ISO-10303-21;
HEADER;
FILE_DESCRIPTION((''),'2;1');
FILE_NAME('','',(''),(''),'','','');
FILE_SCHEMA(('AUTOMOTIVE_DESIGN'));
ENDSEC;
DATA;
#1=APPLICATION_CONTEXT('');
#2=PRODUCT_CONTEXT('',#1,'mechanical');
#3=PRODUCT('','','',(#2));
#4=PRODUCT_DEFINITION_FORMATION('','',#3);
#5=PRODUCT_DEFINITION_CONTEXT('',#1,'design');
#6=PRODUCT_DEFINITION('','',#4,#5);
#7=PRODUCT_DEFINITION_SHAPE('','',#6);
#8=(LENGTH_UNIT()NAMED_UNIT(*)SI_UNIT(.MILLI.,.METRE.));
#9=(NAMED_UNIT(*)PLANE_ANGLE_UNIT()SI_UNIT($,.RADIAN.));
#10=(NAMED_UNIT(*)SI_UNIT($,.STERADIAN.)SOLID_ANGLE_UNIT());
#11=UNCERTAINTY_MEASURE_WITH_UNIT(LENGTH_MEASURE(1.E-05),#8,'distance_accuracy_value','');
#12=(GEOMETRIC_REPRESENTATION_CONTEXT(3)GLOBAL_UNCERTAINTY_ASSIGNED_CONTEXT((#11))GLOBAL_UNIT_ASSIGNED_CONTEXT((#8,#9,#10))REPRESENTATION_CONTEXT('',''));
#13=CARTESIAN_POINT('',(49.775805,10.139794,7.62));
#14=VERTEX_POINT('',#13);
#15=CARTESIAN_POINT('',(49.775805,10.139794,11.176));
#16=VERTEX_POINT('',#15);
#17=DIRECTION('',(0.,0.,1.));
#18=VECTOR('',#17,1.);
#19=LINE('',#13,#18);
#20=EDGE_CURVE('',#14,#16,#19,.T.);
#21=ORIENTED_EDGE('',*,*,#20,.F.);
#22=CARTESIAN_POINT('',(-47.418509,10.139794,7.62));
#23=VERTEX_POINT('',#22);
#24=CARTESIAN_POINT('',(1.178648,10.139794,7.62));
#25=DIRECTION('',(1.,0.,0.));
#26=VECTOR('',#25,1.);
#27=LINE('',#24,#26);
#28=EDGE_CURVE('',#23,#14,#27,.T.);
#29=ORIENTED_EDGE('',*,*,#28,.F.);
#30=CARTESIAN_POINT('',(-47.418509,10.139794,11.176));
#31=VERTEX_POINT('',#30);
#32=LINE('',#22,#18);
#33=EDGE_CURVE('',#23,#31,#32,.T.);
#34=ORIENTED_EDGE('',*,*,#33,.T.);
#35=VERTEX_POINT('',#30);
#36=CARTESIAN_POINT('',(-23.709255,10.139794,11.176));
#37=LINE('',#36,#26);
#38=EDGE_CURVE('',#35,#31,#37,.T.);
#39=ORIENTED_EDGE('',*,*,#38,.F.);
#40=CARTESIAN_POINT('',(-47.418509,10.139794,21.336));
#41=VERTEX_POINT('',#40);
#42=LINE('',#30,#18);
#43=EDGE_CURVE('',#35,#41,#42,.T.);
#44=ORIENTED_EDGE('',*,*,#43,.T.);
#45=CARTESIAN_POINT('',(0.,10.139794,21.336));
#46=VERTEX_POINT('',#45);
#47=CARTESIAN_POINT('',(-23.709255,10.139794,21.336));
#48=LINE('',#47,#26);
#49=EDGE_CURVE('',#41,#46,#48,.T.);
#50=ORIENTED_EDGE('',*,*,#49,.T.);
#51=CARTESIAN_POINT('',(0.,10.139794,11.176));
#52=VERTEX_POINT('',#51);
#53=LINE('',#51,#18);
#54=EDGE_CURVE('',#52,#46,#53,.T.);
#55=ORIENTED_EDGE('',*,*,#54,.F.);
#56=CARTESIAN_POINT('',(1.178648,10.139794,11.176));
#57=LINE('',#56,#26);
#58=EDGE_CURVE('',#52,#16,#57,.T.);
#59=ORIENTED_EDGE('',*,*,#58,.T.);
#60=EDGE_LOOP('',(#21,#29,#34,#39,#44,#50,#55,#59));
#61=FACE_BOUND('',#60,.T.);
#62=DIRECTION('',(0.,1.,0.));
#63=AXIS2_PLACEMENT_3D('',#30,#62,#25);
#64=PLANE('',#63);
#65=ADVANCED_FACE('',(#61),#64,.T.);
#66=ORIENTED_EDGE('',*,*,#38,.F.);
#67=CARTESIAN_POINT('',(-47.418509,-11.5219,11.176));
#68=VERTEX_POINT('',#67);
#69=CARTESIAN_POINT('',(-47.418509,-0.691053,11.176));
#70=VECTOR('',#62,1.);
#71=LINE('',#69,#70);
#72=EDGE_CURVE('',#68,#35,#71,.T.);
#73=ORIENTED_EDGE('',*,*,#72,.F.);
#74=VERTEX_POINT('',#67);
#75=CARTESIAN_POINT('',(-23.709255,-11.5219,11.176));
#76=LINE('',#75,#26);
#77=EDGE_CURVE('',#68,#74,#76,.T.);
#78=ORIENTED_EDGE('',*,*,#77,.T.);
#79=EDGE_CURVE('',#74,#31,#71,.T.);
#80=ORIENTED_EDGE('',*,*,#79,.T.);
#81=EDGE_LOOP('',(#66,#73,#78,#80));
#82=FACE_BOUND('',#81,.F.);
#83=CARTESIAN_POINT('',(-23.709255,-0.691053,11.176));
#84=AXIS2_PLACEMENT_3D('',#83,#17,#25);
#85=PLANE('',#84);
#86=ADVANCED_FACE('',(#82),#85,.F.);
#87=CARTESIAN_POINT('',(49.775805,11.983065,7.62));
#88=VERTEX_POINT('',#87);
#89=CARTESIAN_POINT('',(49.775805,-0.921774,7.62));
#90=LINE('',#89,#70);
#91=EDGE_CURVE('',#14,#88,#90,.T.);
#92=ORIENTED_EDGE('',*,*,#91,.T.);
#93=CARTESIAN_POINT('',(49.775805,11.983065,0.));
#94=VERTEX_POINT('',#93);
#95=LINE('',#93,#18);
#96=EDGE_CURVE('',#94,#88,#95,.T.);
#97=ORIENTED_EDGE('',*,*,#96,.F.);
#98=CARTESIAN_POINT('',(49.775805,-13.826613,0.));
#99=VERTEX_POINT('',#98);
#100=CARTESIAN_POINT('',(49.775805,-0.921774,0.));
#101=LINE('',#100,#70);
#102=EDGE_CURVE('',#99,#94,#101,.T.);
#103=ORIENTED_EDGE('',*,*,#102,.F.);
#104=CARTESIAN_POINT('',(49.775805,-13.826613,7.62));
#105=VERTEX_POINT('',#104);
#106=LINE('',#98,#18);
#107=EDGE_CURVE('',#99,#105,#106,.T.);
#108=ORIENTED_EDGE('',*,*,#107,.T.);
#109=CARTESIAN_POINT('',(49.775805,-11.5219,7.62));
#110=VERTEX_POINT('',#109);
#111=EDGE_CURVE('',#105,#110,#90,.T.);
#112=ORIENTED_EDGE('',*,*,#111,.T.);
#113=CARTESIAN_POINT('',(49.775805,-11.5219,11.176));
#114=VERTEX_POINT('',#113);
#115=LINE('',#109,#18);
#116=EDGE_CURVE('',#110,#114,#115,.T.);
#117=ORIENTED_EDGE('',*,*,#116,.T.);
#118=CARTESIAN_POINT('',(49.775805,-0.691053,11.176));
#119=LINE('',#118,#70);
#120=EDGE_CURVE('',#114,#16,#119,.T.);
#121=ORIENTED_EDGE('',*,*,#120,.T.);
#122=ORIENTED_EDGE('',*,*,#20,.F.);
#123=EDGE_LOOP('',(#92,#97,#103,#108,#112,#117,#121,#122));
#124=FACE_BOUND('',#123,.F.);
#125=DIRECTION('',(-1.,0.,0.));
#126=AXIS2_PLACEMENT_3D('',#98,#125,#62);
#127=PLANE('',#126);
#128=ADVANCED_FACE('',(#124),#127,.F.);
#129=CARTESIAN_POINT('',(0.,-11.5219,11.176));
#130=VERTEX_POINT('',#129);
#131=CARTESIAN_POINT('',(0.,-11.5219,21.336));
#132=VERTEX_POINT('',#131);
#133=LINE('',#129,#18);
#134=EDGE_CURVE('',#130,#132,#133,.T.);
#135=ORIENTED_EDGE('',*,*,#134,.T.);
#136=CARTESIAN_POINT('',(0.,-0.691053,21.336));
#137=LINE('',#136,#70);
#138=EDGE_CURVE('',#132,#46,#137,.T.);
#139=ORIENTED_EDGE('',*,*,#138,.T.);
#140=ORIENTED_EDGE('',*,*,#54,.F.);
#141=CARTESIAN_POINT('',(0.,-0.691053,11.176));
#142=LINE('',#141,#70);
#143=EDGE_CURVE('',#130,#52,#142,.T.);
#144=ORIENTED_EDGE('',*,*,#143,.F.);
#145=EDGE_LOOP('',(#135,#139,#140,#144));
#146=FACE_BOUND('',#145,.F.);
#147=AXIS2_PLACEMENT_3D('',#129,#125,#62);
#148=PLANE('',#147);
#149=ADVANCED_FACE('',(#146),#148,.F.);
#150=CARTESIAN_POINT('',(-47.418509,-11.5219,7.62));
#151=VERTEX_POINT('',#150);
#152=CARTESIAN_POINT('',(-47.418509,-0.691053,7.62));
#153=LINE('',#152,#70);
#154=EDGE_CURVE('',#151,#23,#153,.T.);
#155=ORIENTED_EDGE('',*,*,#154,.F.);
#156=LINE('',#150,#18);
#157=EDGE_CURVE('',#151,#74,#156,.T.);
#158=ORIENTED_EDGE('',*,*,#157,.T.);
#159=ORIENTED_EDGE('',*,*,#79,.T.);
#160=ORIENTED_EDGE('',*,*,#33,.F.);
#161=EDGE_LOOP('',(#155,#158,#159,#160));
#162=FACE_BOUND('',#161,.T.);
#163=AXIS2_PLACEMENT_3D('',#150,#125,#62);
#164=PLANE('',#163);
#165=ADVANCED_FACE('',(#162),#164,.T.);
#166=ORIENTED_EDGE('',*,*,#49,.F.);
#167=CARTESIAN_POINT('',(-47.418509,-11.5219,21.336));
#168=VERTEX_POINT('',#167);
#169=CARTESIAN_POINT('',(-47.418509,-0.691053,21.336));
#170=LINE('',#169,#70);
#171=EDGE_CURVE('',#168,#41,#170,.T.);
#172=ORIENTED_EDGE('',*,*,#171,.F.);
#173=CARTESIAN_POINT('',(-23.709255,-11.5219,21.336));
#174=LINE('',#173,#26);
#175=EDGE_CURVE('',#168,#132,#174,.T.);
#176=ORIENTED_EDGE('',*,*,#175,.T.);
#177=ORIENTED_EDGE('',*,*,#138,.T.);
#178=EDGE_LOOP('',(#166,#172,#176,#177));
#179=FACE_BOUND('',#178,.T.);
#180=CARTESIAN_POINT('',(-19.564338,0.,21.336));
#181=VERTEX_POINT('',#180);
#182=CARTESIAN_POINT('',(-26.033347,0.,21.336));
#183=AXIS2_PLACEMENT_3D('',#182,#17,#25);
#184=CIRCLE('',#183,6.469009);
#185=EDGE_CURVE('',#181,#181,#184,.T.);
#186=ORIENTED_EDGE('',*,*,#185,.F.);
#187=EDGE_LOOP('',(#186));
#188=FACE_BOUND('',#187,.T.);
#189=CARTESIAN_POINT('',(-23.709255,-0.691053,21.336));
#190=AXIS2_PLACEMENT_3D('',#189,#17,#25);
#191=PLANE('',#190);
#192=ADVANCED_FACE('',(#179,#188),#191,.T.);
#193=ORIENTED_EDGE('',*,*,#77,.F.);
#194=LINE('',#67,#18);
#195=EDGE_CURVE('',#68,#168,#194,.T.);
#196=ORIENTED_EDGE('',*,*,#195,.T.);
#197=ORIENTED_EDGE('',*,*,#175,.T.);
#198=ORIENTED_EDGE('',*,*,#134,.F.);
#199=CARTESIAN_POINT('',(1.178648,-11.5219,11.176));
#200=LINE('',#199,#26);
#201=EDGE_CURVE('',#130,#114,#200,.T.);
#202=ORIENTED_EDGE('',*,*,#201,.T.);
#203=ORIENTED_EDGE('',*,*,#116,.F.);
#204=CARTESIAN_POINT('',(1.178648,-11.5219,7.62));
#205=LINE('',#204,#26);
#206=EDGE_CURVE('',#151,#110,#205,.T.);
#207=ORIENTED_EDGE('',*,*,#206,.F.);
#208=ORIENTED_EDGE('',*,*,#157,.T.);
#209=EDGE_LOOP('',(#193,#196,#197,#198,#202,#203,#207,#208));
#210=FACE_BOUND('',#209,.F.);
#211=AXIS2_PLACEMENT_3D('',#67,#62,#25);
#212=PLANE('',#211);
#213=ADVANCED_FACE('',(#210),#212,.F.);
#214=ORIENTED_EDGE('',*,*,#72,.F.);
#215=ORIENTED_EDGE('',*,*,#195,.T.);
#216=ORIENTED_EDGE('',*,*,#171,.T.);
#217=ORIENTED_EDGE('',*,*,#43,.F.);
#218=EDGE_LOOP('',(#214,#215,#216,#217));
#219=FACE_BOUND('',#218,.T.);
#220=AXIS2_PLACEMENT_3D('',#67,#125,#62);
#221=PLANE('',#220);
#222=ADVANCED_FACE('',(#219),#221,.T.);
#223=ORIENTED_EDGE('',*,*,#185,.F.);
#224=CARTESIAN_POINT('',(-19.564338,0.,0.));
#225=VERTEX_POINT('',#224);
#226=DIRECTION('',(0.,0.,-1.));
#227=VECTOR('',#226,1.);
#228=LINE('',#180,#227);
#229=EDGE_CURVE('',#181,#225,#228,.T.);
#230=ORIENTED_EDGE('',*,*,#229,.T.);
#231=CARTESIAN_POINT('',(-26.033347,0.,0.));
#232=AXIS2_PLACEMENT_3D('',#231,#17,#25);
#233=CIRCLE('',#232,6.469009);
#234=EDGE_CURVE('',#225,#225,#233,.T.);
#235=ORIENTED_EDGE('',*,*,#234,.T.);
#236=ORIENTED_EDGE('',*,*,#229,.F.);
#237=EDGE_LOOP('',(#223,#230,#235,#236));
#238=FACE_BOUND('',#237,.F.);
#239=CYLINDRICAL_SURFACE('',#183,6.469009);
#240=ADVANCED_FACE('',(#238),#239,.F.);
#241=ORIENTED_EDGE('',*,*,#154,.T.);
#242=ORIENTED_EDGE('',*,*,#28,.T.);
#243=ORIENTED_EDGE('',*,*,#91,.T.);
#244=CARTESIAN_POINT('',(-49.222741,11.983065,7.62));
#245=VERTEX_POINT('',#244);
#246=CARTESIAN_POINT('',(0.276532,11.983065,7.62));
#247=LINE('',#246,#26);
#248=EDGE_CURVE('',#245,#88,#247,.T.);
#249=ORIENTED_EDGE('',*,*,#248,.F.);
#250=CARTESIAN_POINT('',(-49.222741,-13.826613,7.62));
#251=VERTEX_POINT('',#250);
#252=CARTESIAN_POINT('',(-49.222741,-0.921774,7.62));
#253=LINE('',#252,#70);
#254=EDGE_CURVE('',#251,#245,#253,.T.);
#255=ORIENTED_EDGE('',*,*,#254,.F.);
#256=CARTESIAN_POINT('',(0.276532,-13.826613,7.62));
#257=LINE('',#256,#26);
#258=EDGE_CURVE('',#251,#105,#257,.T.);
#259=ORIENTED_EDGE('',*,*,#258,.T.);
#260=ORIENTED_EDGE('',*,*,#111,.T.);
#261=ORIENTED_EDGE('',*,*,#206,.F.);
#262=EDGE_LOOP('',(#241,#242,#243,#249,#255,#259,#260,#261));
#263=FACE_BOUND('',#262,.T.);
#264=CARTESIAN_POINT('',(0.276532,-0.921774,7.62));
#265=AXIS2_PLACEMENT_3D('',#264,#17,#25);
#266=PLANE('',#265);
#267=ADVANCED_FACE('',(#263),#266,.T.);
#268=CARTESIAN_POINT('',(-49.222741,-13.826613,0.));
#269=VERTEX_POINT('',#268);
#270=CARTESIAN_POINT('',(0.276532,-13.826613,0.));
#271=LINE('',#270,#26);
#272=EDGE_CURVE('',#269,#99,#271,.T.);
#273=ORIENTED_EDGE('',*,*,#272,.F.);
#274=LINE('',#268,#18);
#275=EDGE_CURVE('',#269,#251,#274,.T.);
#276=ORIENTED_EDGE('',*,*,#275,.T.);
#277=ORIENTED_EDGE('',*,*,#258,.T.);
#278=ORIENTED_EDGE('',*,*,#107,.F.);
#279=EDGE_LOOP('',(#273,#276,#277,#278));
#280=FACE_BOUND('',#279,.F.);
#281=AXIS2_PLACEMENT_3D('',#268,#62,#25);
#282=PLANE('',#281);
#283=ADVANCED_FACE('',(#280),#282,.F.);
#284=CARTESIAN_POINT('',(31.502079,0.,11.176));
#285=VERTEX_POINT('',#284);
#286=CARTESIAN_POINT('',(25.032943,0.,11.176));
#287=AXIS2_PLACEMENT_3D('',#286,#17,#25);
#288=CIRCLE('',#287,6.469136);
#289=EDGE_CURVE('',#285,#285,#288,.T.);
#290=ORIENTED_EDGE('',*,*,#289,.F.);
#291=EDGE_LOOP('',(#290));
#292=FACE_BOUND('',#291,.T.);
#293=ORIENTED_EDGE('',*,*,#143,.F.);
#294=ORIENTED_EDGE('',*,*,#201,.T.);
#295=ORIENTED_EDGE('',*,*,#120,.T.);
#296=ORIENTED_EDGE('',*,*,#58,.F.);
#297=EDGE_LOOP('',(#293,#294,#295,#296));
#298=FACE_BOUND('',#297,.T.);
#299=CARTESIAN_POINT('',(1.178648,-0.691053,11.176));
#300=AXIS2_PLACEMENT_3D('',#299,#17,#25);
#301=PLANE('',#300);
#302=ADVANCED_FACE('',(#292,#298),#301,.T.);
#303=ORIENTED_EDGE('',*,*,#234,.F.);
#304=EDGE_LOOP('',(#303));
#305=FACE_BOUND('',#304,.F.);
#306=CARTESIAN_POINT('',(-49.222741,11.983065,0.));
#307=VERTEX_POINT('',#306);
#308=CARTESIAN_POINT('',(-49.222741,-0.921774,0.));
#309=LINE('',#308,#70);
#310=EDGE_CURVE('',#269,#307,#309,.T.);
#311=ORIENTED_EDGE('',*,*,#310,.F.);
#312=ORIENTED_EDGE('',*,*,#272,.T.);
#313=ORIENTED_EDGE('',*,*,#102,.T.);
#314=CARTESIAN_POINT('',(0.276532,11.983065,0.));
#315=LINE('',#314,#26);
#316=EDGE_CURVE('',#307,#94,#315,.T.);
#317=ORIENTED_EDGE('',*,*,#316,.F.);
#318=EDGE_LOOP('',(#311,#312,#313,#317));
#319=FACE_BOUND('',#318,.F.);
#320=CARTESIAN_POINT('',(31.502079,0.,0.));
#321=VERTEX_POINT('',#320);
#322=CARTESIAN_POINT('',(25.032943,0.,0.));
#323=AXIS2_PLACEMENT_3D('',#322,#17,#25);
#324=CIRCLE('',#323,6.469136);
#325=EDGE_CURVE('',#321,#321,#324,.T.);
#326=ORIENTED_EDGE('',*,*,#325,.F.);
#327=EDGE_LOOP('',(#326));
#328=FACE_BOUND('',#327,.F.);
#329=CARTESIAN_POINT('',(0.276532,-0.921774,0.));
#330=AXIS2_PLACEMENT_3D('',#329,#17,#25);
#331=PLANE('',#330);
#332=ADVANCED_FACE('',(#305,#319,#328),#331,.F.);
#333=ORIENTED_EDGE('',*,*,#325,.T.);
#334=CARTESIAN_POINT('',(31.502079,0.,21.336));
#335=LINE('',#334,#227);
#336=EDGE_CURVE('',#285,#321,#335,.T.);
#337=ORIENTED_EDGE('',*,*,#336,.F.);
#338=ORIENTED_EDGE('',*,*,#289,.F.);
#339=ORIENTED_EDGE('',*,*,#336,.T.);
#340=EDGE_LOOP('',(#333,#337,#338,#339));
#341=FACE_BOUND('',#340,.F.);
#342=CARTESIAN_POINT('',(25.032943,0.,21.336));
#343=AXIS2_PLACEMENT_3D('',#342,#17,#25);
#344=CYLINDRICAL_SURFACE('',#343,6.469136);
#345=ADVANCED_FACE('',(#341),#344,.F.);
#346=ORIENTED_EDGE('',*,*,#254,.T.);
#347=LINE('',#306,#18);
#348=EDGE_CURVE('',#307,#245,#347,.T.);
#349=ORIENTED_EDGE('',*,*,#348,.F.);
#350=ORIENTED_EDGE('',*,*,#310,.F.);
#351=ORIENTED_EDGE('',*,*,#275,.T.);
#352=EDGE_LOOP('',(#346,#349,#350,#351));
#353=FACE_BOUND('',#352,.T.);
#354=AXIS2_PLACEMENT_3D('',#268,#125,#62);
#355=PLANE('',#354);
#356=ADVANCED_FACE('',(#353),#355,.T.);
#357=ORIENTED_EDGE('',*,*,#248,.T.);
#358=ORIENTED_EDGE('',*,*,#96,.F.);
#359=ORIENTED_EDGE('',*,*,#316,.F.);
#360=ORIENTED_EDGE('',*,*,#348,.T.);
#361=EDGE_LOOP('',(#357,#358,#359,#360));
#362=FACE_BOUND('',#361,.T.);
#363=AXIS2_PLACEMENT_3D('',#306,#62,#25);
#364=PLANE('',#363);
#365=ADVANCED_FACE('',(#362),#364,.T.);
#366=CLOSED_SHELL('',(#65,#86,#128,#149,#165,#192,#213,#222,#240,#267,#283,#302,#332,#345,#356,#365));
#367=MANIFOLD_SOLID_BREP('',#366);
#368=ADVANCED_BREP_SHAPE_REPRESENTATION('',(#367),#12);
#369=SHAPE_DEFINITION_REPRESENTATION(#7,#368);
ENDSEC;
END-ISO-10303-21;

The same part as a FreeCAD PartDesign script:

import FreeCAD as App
import Part
import Sketcher
Q = App.Units.Quantity

doc = App.newDocument("Part")
body = doc.addObject("PartDesign::Body", "Body")

# Sketch on XY plane
sketch1 = body.newObject("Sketcher::SketchObject", "Sketch")
sketch1.AttachmentSupport = (doc.getObject("XY_Plane"), [""])
sketch1.MapMode = "FlatFace"
sketch1.addGeometry([
    Part.LineSegment(App.Vector(-49, 12, 0), App.Vector(-49, -14, 0)),
    Part.LineSegment(App.Vector(-49, -14, 0), App.Vector(50, -14, 0)),
    Part.LineSegment(App.Vector(50, -14, 0), App.Vector(50, 12, 0)),
    Part.LineSegment(App.Vector(50, 12, 0), App.Vector(-49, 12, 0)),
], False)
sketch1.addConstraint([
    Sketcher.Constraint("Coincident", 0, 2, 1, 1),
    Sketcher.Constraint("Coincident", 1, 2, 2, 1),
    Sketcher.Constraint("Coincident", 2, 2, 3, 1),
    Sketcher.Constraint("Coincident", 3, 2, 0, 1),
    Sketcher.Constraint("Vertical", 0),
    Sketcher.Constraint("Horizontal", 1),
    Sketcher.Constraint("Vertical", 2),
    Sketcher.Constraint("Horizontal", 3),
    Sketcher.Constraint("DistanceX", 1, 1, 1, 2, Q("98.998546 mm")),
    Sketcher.Constraint("DistanceY", 0, 2, 0, 1, Q("25.809678 mm")),
    Sketcher.Constraint("DistanceX", 0, 2, -1, 1, Q("49.222741 mm")),
    Sketcher.Constraint("DistanceY", 0, 2, -1, 1, Q("13.826613 mm")),
])
pad1 = body.newObject("PartDesign::Pad", "Pad")
pad1.Profile = sketch1
pad1.Length = Q("0.3 in")

# Sketch on XY plane
sketch2 = body.newObject("Sketcher::SketchObject", "Sketch001")
sketch2.AttachmentSupport = (doc.getObject("XY_Plane"), [""])
sketch2.MapMode = "FlatFace"
sketch2.AttachmentOffset = App.Placement(App.Vector(0, 0, 0.3 * 25.4), App.Rotation())
sketch2.addGeometry([
    Part.LineSegment(App.Vector(-47, 10, 0), App.Vector(-47, -12, 0)),
    Part.LineSegment(App.Vector(-47, -12, 0), App.Vector(50, -12, 0)),
    Part.LineSegment(App.Vector(50, -12, 0), App.Vector(50, 10, 0)),
    Part.LineSegment(App.Vector(50, 10, 0), App.Vector(-47, 10, 0)),
], False)
sketch2.addConstraint([
    Sketcher.Constraint("Coincident", 0, 2, 1, 1),
    Sketcher.Constraint("Coincident", 1, 2, 2, 1),
    Sketcher.Constraint("Coincident", 2, 2, 3, 1),
    Sketcher.Constraint("Coincident", 3, 2, 0, 1),
    Sketcher.Constraint("Vertical", 0),
    Sketcher.Constraint("Horizontal", 1),
    Sketcher.Constraint("Vertical", 2),
    Sketcher.Constraint("Horizontal", 3),
    Sketcher.Constraint("DistanceY", 0, 2, -1, 1, Q("11.5219 mm")),
    Sketcher.Constraint("DistanceX", 1, 1, 1, 2, Q("97.194314 mm")),
    Sketcher.Constraint("DistanceY", 0, 2, 0, 1, Q("21.661694 mm")),
    Sketcher.Constraint("DistanceX", 0, 2, -1, 1, Q("47.418509 mm")),
])
pad2 = body.newObject("PartDesign::Pad", "Pad001")
pad2.Profile = sketch2
pad2.Length = Q("0.14 in")

# Sketch on XY plane
sketch3 = body.newObject("Sketcher::SketchObject", "Sketch002")
sketch3.AttachmentSupport = (doc.getObject("XY_Plane"), [""])
sketch3.MapMode = "FlatFace"
sketch3.AttachmentOffset = App.Placement(App.Vector(0, 0, 0.44 * 25.4), App.Rotation())
sketch3.addGeometry([
    Part.LineSegment(App.Vector(-47, 10, 0), App.Vector(-47, -12, 0)),
    Part.LineSegment(App.Vector(-47, -12, 0), App.Vector(0, -12, 0)),
    Part.LineSegment(App.Vector(0, -12, 0), App.Vector(0, 10, 0)),
    Part.LineSegment(App.Vector(0, 10, 0), App.Vector(-47, 10, 0)),
], False)
sketch3.addConstraint([
    Sketcher.Constraint("Coincident", 0, 2, 1, 1),
    Sketcher.Constraint("Coincident", 1, 2, 2, 1),
    Sketcher.Constraint("Coincident", 2, 2, 3, 1),
    Sketcher.Constraint("Coincident", 3, 2, 0, 1),
    Sketcher.Constraint("Vertical", 0),
    Sketcher.Constraint("Horizontal", 1),
    Sketcher.Constraint("Vertical", 2),
    Sketcher.Constraint("Horizontal", 3),
    Sketcher.Constraint("PointOnObject", 1, 2, -2),
    Sketcher.Constraint("DistanceX", 1, 1, 1, 2, Q("47.418509 mm")),
    Sketcher.Constraint("DistanceY", 0, 2, -1, 1, Q("11.5219 mm")),
    Sketcher.Constraint("DistanceY", 0, 2, 0, 1, Q("21.661694 mm")),
])
pad3 = body.newObject("PartDesign::Pad", "Pad002")
pad3.Profile = sketch3
pad3.Length = Q("0.4 in")

# Sketch on XY plane
sketch4 = body.newObject("Sketcher::SketchObject", "Sketch003")
sketch4.AttachmentSupport = (doc.getObject("XY_Plane"), [""])
sketch4.MapMode = "FlatFace"
sketch4.AttachmentOffset = App.Placement(App.Vector(0, 0, 0.84 * 25.4), App.Rotation())
sketch4.addGeometry([
    Part.Circle(App.Vector(-26, 0, 0), App.Vector(0, 0, 1), 6),
    Part.Circle(App.Vector(25, 0, 0), App.Vector(0, 0, 1), 6),
], False)
sketch4.addConstraint([
    Sketcher.Constraint("PointOnObject", 0, 3, -1),
    Sketcher.Constraint("PointOnObject", 1, 3, -1),
    Sketcher.Constraint("Diameter", 0, Q("12.938018 mm")),
    Sketcher.Constraint("Diameter", 1, Q("12.938272 mm")),
    Sketcher.Constraint("DistanceX", 0, 3, 1, 3, Q("51.06629 mm")),
    Sketcher.Constraint("DistanceX", 0, 3, -1, 1, Q("26.033347 mm")),
])
pocket1 = body.newObject("PartDesign::Pocket", "Pocket")
pocket1.Profile = sketch4
pocket1.Length = Q("0.86 in")

doc.recompute()
